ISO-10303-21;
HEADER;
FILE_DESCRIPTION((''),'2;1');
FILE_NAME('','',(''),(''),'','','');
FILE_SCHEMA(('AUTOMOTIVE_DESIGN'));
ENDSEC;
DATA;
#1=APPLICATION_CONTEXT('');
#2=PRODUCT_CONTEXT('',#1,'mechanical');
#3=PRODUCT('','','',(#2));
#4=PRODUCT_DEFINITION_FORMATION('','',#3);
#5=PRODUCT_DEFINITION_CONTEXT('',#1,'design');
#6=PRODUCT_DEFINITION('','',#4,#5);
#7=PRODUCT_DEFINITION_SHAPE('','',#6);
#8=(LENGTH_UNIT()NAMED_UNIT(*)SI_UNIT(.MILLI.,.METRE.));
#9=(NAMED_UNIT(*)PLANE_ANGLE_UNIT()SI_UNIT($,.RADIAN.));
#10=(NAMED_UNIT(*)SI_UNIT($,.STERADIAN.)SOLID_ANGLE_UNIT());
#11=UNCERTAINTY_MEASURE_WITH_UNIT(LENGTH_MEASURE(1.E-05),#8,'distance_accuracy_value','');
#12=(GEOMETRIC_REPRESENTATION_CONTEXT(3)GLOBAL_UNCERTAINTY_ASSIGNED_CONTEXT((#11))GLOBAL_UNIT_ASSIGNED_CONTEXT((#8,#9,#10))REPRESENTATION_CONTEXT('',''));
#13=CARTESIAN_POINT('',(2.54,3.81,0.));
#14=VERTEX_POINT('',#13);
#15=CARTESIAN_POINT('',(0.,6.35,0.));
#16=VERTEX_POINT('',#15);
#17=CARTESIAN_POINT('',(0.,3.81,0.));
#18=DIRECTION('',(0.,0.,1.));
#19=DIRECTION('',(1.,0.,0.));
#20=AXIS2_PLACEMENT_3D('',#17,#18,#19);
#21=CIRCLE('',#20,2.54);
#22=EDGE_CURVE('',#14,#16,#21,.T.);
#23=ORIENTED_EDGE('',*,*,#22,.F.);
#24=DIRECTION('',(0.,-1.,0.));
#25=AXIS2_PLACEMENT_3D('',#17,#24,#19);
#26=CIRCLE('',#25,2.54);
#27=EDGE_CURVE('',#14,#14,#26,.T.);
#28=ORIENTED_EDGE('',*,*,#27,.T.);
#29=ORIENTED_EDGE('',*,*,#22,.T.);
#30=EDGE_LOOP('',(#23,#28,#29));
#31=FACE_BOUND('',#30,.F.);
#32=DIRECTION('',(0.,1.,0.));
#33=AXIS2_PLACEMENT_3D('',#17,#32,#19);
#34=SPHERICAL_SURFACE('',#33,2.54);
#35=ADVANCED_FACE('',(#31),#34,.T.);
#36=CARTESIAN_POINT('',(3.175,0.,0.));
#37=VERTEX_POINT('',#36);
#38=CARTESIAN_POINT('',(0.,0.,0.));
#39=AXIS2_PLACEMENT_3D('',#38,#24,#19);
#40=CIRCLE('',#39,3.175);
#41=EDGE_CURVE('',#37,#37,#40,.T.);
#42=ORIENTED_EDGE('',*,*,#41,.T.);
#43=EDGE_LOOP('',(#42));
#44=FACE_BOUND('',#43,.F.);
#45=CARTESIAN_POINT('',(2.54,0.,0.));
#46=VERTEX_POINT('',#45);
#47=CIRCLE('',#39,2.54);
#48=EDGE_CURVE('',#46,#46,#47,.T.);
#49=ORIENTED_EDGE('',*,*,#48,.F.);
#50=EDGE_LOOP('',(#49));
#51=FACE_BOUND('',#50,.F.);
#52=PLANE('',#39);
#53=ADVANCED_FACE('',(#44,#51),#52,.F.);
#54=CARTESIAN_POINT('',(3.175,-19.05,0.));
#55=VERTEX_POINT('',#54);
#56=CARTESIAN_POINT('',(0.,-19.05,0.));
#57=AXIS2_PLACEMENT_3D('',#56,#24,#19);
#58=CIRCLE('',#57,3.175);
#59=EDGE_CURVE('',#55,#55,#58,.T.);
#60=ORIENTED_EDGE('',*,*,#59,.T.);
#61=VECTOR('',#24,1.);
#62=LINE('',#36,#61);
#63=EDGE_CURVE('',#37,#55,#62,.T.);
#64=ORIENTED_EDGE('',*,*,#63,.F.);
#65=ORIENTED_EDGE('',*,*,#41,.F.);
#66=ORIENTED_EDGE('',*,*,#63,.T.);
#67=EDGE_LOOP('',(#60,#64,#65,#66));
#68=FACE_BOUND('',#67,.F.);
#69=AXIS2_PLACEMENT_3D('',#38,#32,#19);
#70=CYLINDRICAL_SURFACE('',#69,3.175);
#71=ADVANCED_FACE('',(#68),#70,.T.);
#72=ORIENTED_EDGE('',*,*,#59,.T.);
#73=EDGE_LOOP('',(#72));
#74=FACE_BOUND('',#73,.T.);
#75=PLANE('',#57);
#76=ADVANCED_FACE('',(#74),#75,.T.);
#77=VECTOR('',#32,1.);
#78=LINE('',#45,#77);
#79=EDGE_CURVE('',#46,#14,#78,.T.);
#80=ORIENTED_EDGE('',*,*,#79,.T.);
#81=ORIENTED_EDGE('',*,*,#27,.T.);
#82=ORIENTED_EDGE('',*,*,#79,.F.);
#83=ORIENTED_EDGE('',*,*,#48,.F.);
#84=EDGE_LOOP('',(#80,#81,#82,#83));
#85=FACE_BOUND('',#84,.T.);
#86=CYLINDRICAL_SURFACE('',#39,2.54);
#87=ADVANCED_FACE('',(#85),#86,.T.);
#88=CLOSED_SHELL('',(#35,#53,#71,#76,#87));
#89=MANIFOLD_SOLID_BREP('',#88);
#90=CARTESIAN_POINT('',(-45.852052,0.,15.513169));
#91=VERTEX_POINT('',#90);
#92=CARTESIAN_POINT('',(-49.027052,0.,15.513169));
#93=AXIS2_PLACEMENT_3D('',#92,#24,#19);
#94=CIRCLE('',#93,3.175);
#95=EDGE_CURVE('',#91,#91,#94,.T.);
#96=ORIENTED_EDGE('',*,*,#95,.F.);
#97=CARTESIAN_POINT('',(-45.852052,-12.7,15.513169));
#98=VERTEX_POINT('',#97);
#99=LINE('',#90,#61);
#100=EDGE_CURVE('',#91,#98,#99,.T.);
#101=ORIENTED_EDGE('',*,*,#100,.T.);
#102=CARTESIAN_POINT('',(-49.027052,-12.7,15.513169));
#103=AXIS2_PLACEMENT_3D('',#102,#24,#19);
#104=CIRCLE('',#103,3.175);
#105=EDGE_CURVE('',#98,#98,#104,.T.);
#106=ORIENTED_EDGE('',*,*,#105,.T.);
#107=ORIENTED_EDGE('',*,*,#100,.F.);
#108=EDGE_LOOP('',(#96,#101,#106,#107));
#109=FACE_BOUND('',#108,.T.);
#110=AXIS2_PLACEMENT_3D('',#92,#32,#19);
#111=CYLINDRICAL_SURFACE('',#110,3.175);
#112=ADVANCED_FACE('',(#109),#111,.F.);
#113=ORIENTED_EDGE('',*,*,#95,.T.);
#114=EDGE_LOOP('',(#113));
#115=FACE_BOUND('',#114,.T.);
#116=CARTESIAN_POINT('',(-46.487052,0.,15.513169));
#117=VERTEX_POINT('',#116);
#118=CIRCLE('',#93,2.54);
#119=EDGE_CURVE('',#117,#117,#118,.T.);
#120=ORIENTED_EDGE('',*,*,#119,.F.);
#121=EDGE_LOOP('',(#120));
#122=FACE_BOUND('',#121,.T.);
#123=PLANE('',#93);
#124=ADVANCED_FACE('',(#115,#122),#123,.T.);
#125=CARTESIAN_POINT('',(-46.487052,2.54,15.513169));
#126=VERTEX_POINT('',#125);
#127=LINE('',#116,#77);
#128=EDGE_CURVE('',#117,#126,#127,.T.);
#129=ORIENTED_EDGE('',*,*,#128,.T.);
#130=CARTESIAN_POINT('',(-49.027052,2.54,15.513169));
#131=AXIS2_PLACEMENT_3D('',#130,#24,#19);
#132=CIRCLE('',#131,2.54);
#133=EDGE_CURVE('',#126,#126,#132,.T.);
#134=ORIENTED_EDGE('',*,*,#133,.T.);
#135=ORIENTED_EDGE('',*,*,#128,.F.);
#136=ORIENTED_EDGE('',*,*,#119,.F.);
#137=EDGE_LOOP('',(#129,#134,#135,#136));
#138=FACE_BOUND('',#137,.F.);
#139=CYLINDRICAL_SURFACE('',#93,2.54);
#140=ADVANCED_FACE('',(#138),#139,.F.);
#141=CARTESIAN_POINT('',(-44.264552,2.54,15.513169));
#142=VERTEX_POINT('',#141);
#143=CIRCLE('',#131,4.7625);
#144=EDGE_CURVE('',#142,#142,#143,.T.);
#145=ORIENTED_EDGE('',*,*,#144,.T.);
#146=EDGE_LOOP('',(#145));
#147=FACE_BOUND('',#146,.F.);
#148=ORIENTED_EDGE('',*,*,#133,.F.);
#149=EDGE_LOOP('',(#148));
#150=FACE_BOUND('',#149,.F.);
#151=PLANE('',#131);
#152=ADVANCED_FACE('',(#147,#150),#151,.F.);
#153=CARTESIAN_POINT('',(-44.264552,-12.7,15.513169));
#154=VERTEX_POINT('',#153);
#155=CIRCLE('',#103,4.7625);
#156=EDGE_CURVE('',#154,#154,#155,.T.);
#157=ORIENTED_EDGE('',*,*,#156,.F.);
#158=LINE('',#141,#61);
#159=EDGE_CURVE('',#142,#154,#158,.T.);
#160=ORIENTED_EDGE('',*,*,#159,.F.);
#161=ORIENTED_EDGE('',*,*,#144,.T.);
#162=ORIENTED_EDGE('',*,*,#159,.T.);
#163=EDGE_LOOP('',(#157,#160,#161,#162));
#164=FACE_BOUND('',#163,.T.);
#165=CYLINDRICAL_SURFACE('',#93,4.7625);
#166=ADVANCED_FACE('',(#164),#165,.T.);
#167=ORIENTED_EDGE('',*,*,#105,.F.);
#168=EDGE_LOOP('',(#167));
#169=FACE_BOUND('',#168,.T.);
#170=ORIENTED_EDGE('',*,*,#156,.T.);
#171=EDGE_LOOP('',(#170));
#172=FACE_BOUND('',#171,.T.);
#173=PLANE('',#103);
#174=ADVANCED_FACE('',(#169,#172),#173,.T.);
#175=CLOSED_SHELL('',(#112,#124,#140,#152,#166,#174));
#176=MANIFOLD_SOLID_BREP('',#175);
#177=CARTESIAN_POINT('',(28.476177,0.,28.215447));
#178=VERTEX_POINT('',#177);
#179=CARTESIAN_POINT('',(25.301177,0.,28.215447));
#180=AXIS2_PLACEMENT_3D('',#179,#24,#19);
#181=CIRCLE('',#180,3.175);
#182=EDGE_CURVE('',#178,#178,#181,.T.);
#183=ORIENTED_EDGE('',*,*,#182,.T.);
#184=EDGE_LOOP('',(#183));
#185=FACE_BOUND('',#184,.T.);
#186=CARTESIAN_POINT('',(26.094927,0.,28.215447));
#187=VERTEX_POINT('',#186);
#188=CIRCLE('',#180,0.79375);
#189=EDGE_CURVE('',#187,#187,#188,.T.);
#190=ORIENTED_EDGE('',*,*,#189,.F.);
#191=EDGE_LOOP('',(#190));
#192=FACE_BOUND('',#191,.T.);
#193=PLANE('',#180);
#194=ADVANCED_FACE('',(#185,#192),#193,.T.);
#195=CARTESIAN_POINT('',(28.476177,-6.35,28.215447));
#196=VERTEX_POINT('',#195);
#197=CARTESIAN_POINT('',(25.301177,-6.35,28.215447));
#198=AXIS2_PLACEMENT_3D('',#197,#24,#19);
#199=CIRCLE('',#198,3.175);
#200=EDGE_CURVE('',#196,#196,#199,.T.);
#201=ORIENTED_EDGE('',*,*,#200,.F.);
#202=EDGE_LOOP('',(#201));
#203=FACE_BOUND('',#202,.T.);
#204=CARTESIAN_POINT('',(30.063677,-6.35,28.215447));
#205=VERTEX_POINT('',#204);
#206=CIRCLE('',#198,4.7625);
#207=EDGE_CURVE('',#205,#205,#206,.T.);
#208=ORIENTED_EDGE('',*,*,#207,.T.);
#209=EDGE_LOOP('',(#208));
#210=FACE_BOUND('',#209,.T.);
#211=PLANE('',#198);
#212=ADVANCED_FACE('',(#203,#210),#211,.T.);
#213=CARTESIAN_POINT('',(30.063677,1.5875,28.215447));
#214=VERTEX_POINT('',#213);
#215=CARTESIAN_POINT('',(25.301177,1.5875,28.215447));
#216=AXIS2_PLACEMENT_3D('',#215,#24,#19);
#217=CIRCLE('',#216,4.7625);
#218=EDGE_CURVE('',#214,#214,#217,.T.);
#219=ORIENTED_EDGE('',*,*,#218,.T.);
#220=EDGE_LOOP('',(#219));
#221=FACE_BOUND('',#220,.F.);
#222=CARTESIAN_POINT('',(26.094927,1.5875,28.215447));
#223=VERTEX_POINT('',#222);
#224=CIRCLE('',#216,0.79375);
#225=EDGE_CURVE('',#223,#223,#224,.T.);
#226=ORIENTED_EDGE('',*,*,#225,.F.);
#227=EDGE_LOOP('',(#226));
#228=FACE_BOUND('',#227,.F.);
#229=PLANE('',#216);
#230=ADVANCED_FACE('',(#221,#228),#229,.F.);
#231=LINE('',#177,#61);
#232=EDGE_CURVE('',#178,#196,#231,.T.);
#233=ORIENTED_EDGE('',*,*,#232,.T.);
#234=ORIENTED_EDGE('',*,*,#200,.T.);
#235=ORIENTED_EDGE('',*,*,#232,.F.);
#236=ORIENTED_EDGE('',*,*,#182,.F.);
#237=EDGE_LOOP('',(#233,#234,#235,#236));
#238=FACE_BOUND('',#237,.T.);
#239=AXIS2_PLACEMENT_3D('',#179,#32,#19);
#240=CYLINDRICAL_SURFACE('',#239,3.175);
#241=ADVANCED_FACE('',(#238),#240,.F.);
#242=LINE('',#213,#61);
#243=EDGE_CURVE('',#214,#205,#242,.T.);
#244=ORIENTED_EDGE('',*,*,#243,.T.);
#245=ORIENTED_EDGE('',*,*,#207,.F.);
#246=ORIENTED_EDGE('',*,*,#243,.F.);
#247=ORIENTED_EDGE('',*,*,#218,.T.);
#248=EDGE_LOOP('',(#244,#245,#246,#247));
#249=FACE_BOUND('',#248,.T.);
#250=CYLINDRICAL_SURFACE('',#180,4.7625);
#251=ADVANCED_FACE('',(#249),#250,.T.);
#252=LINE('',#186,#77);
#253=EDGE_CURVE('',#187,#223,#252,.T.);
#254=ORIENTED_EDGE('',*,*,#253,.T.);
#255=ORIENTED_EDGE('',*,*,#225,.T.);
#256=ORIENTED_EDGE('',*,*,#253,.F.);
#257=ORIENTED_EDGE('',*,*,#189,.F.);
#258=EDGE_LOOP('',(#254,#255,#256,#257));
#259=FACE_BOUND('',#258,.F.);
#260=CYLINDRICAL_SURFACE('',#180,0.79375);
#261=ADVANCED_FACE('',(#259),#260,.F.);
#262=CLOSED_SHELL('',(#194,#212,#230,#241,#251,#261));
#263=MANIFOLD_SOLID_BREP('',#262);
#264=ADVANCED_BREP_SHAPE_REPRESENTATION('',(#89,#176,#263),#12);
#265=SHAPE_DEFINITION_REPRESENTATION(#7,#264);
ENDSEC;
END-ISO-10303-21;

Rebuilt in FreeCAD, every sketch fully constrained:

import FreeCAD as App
import Part
import Sketcher
Q = App.Units.Quantity


def edges_at(feature, points):
    """Names of the edges that pass closest to the given points."""
    edges = feature.Shape.Edges
    near = lambda p: min(range(len(edges)), key=lambda i: edges[i].distToShape(Part.Vertex(*p))[0])
    return sorted({f"Edge{near(p) + 1}" for p in points})

doc = App.newDocument("Part")
body = doc.addObject("PartDesign::Body", "Body")

sketch1 = body.newObject("Sketcher::SketchObject", "Sketch")
sketch1.AttachmentSupport = (doc.getObject("XZ_Plane"), [""])
sketch1.MapMode = "FlatFace"
sketch1.addGeometry(Part.Circle(App.Vector(0, 0, 0), App.Vector(0, 0, 1), 3.175), False)
sketch1.addConstraint([
    Sketcher.Constraint("Coincident", 0, 3, -1, 1),
    Sketcher.Constraint("Diameter", 0, Q("0.25 in")),
])
pad1 = body.newObject("PartDesign::Pad", "Pad")
pad1.Profile = sketch1
pad1.Length = Q("0.75 in")

sketch2 = body.newObject("Sketcher::SketchObject", "Sketch001")
sketch2.AttachmentSupport = (doc.getObject("XZ_Plane"), [""])
sketch2.MapMode = "FlatFace"
sketch2.addGeometry(Part.Circle(App.Vector(0, 0, 0), App.Vector(0, 0, 1), 2.54), False)
sketch2.addConstraint([
    Sketcher.Constraint("Coincident", 0, 3, -1, 1),
    Sketcher.Constraint("Diameter", 0, Q("0.2 in")),
])
pad2 = body.newObject("PartDesign::Pad", "Pad001")
pad2.Profile = sketch2
pad2.Length = Q("0.25 in")
pad2.Reversed = True
doc.recompute()

fillet = body.newObject("PartDesign::Fillet", "Fillet")
fillet.Base = (pad2, edges_at(pad2, [(-2.54, 6.35, 0)]))
fillet.Radius = Q("0.1 in")
body2 = doc.addObject("PartDesign::Body", "Body001")

sketch3 = body2.newObject("Sketcher::SketchObject", "Sketch002")
sketch3.AttachmentSupport = (doc.getObject("XZ_Plane001"), [""])
sketch3.MapMode = "FlatFace"
sketch3.addGeometry([
    Part.Circle(App.Vector(-49.027052, 15.513169, 0), App.Vector(0, 0, 1), 4.7625),
    Part.Circle(App.Vector(-49.027052, 15.513169, 0), App.Vector(0, 0, 1), 3.175),
], False)
sketch3.addConstraint([
    Sketcher.Constraint("Coincident", 1, 3, 0, 3),
    Sketcher.Constraint("Diameter", 1, Q("0.25 in")),
    Sketcher.Constraint("Diameter", 0, Q("0.375 in")),
    Sketcher.Constraint("DistanceX", 0, 3, -1, 1, 49.027052),
    Sketcher.Constraint("DistanceY", -1, 1, 0, 3, 15.513169),
])
pad3 = body2.newObject("PartDesign::Pad", "Pad002")
pad3.Profile = sketch3
pad3.Length = Q("0.5 in")

sketch4 = body2.newObject("Sketcher::SketchObject", "Sketch003")
sketch4.AttachmentSupport = (doc.getObject("XZ_Plane001"), [""])
sketch4.MapMode = "FlatFace"
sketch4.addGeometry([
    Part.Circle(App.Vector(-49.027052, 15.513169, 0), App.Vector(0, 0, 1), 4.7625),
    Part.Circle(App.Vector(-49.027052, 15.513169, 0), App.Vector(0, 0, 1), 2.54),
], False)
sketch4.addConstraint([
    Sketcher.Constraint("Coincident", 1, 3, 0, 3),
    Sketcher.Constraint("Diameter", 1, Q("0.2 in")),
    Sketcher.Constraint("Diameter", 0, Q("0.375 in")),
    Sketcher.Constraint("DistanceX", 0, 3, -1, 1, 49.027052),
    Sketcher.Constraint("DistanceY", -1, 1, 0, 3, 15.513169),
])
pad4 = body2.newObject("PartDesign::Pad", "Pad003")
pad4.Profile = sketch4
pad4.Length = Q("0.1 in")
pad4.Reversed = True
body3 = doc.addObject("PartDesign::Body", "Body002")

sketch5 = body3.newObject("Sketcher::SketchObject", "Sketch004")
sketch5.AttachmentSupport = (doc.getObject("XZ_Plane002"), [""])
sketch5.MapMode = "FlatFace"
sketch5.addGeometry([
    Part.Circle(App.Vector(25.301177, 28.215447, 0), App.Vector(0, 0, 1), 4.7625),
    Part.Circle(App.Vector(25.301177, 28.215447, 0), App.Vector(0, 0, 1), 3.175),
], False)
sketch5.addConstraint([
    Sketcher.Constraint("Coincident", 1, 3, 0, 3),
    Sketcher.Constraint("Diameter", 1, Q("0.25 in")),
    Sketcher.Constraint("Diameter", 0, Q("0.375 in")),
    Sketcher.Constraint("DistanceX", -1, 1, 0, 3, 25.301177),
    Sketcher.Constraint("DistanceY", -1, 1, 0, 3, 28.215447),
])
pad5 = body3.newObject("PartDesign::Pad", "Pad004")
pad5.Profile = sketch5
pad5.Length = Q("0.25 in")

sketch6 = body3.newObject("Sketcher::SketchObject", "Sketch005")
sketch6.AttachmentSupport = (doc.getObject("XZ_Plane002"), [""])
sketch6.MapMode = "FlatFace"
sketch6.addGeometry([
    Part.Circle(App.Vector(25.301177, 28.215447, 0), App.Vector(0, 0, 1), 4.7625),
    Part.Circle(App.Vector(25.301177, 28.215447, 0), App.Vector(0, 0, 1), 0.79375),
], False)
sketch6.addConstraint([
    Sketcher.Constraint("Coincident", 1, 3, 0, 3),
    Sketcher.Constraint("Diameter", 0, Q("0.375 in")),
    Sketcher.Constraint("Diameter", 1, Q("0.0625 in")),
    Sketcher.Constraint("DistanceX", -1, 1, 0, 3, 25.301177),
    Sketcher.Constraint("DistanceY", -1, 1, 0, 3, 28.215447),
])
pad6 = body3.newObject("PartDesign::Pad", "Pad005")
pad6.Profile = sketch6
pad6.Length = Q("0.0625 in")
pad6.Reversed = True

doc.recompute()
